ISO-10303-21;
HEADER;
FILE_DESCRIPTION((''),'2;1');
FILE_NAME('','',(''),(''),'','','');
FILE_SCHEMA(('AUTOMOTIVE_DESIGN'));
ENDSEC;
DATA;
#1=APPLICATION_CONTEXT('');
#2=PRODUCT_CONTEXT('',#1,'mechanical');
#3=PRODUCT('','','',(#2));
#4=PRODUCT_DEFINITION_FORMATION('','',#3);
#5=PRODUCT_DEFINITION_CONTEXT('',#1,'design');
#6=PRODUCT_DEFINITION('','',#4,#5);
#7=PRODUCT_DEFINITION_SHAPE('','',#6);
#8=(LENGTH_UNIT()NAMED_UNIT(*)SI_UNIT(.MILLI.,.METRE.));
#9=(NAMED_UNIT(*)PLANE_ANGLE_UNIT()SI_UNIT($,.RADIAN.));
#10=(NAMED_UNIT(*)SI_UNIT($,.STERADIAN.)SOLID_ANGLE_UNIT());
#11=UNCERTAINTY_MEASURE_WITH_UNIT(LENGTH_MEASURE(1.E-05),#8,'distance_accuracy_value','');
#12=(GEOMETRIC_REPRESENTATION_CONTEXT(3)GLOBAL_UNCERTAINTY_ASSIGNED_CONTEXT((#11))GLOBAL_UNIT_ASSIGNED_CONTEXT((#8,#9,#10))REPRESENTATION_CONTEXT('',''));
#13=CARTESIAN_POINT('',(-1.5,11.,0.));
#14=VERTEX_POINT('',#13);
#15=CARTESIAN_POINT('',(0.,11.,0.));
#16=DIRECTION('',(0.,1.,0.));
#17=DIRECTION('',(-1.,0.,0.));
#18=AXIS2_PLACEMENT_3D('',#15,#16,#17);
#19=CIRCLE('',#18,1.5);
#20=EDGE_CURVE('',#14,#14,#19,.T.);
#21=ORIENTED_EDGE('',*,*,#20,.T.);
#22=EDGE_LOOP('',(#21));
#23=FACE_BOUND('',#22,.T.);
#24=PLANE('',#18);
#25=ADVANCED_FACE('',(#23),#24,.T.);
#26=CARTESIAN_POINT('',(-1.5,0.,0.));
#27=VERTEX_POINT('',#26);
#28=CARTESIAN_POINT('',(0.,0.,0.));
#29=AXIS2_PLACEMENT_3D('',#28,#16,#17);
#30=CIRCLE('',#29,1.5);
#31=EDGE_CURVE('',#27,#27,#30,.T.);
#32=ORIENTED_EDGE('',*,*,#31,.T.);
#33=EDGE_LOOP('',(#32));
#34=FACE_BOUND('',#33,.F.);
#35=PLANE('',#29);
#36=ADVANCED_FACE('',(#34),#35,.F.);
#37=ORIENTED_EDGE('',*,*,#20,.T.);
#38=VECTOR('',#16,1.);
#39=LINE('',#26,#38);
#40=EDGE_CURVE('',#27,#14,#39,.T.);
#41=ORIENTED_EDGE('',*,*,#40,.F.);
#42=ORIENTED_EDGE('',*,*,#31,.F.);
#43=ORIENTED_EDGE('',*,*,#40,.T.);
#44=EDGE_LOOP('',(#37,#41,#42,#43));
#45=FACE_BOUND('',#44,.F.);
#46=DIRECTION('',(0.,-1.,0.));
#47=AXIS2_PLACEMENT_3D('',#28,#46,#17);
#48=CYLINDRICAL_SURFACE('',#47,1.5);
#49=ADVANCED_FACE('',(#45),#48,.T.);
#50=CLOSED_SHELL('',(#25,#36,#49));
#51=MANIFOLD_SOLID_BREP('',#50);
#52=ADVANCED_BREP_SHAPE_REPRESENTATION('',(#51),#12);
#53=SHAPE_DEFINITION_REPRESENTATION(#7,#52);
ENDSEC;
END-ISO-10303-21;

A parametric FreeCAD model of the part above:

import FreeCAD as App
import Part
import Sketcher
from FreeCAD import Vector
Q = App.Units.Quantity

doc = App.newDocument("Part")
params = doc.addObject("Spreadsheet::Sheet", "Params")
for row, (alias, value) in enumerate([
    ("sketch1_diameter", "3 mm"),
    ("pad1_length", "11 mm"),
], start=1):
    params.set(f"A{row}", alias)
    params.set(f"B{row}", "=" + value)
    params.setAlias(f"B{row}", alias)

body = doc.addObject("PartDesign::Body", "Body")

# Sketch on XZ plane
sketch1 = doc.addObject("Sketcher::SketchObject", "Sketch")
body.addObject(sketch1)
sketch1.AttachmentSupport = (doc.XZ_Plane, [""])
sketch1.MapMode = "FlatFace"
sketch1.addGeometry(Part.Circle(Vector(0, 0, 0), Vector(0, 0, 1), 1.5), False)
sketch1.addConstraint([
    Sketcher.Constraint("Coincident", 0, 3, -1, 1),
    Sketcher.Constraint("Diameter", 0, Q("3 mm")),
])
sketch1.setExpression("Constraints[1]", "Params.sketch1_diameter")
pad1 = doc.addObject("PartDesign::Pad", "Pad")
body.addObject(pad1)
pad1.Profile = sketch1
pad1.setExpression("Length", "Params.pad1_length")
pad1.Reversed = True

doc.recompute()
